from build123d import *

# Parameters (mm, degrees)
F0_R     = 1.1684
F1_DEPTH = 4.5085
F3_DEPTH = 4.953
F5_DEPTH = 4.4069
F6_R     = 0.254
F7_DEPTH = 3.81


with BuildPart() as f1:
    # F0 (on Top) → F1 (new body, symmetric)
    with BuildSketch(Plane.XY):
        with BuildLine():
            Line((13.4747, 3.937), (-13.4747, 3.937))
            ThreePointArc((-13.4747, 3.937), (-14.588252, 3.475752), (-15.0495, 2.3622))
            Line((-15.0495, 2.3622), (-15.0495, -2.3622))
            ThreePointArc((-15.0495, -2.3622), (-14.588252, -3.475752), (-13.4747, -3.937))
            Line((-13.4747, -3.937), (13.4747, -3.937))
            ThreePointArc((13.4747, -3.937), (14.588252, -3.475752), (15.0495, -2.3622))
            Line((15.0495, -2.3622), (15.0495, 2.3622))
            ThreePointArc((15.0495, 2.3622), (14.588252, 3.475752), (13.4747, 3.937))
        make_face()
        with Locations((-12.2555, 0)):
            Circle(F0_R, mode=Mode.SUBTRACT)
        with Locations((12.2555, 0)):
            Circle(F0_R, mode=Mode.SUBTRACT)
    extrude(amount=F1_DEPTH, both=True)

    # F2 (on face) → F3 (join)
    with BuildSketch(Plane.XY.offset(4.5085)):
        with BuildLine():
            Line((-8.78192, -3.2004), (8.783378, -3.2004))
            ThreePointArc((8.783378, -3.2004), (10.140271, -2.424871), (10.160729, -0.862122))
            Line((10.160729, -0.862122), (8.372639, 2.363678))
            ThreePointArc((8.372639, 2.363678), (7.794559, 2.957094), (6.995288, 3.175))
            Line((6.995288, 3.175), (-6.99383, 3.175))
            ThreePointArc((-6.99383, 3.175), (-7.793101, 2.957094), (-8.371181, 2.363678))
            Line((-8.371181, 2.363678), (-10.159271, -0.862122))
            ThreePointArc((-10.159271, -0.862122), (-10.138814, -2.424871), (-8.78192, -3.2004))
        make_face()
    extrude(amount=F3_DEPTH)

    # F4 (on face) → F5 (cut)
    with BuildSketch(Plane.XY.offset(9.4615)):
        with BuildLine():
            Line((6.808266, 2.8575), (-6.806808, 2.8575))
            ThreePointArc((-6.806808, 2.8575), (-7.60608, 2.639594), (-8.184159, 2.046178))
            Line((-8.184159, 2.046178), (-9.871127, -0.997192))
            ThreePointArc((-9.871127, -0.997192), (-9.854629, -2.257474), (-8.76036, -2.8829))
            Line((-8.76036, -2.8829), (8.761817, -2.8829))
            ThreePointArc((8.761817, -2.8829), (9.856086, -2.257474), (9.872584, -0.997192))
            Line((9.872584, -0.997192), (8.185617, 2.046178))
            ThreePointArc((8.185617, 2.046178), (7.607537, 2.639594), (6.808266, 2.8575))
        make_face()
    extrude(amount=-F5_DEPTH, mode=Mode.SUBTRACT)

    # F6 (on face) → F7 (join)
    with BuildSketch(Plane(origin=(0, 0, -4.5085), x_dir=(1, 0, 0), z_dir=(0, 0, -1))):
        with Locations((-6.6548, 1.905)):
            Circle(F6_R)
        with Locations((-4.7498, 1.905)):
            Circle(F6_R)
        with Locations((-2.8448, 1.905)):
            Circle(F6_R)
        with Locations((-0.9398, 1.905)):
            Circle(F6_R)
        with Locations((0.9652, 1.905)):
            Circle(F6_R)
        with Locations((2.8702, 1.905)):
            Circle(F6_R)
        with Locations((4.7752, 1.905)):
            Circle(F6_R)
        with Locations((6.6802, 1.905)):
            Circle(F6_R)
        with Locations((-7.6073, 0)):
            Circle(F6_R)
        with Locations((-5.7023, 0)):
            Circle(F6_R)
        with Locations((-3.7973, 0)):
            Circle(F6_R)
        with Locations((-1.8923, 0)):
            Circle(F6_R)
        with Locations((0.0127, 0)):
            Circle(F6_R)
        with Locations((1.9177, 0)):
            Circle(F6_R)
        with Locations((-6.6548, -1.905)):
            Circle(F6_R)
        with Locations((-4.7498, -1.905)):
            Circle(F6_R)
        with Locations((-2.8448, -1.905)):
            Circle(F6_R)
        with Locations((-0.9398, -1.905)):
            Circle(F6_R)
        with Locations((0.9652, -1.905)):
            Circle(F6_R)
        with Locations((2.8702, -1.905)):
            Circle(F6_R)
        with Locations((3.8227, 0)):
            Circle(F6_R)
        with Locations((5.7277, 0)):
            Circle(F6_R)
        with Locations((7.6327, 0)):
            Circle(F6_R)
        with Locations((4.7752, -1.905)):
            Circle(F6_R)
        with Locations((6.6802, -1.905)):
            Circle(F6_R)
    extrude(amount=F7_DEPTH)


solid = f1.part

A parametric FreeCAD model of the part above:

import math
import FreeCAD as App
import Part
import Sketcher
from FreeCAD import Vector
Q = App.Units.Quantity

doc = App.newDocument("Part")
body = doc.addObject("PartDesign::Body", "Body")

# Sketch on XY plane
sketch1 = body.newObject("Sketcher::SketchObject", "Sketch")
sketch1.AttachmentSupport = (doc.getObject("XY_Plane"), [""])
sketch1.MapMode = "FlatFace"
sketch1.addGeometry([
    Part.LineSegment(Vector(13.4747, 3.937, 0), Vector(-13.4747, 3.937, 0)),  # 0
    Part.ArcOfCircle(Part.Circle(Vector(-13.474701, 2.362201, 0), Vector(0, 0, 1), 1.574799), math.radians(89.99997), math.radians(180.00003)),  # 1
    Part.LineSegment(Vector(-15.0495, 2.3622, 0), Vector(-15.0495, -2.3622, 0)),  # 2
    Part.ArcOfCircle(Part.Circle(Vector(-13.474701, -2.362201, 0), Vector(0, 0, 1), 1.574799), math.radians(179.99997), math.radians(270.00003)),  # 3
    Part.LineSegment(Vector(-13.4747, -3.937, 0), Vector(13.4747, -3.937, 0)),  # 4
    Part.ArcOfCircle(Part.Circle(Vector(13.474701, -2.362201, 0), Vector(0, 0, 1), 1.574799), math.radians(-90.00003), math.radians(0.00003)),  # 5
    Part.LineSegment(Vector(15.0495, -2.3622, 0), Vector(15.0495, 2.3622, 0)),  # 6
    Part.ArcOfCircle(Part.Circle(Vector(13.474701, 2.362201, 0), Vector(0, 0, 1), 1.574799), math.radians(-0.00003), math.radians(90.00003)),  # 7
    Part.Circle(Vector(-12.2555, 0, 0), Vector(0, 0, 1), 1.1684),  # 8
    Part.Circle(Vector(12.2555, 0, 0), Vector(0, 0, 1), 1.1684),  # 9
], False)
sketch1.addConstraint([
    Sketcher.Constraint("Tangent", 0, 2, 1, 1),
    Sketcher.Constraint("Tangent", 1, 2, 2, 1),
    Sketcher.Constraint("Tangent", 2, 2, 3, 1),
    Sketcher.Constraint("Tangent", 3, 2, 4, 1),
    Sketcher.Constraint("Tangent", 4, 2, 5, 1),
    Sketcher.Constraint("Tangent", 5, 2, 6, 1),
    Sketcher.Constraint("Tangent", 6, 2, 7, 1),
    Sketcher.Constraint("Tangent", 7, 2, 0, 1),
    Sketcher.Constraint("Horizontal", 0),
    Sketcher.Constraint("Vertical", 2),
    Sketcher.Constraint("Horizontal", 4),
    Sketcher.Constraint("Vertical", 6),
    Sketcher.Constraint("Equal", 1, 3),
    Sketcher.Constraint("Equal", 3, 5),
    Sketcher.Constraint("Equal", 5, 7),
    Sketcher.Constraint("Equal", 8, 9),
    Sketcher.Constraint("Symmetric", 1, 3, 5, 3, -1, 1),
    Sketcher.Constraint("Symmetric", 8, 3, 9, 3, -1, 1),
    Sketcher.Constraint("PointOnObject", 8, 3, -1),
    Sketcher.Constraint("Diameter", 8, Q("0.092 in")),
    Sketcher.Constraint("Radius", 1, Q("0.062 in")),
    Sketcher.Constraint("DistanceX", 0, 2, 0, 1, Q("1.061 in")),
    Sketcher.Constraint("DistanceY", 2, 2, 2, 1, Q("0.186 in")),
    Sketcher.Constraint("DistanceX", 1, 2, 8, 3, Q("0.11 in")),
])
pad1 = body.newObject("PartDesign::Pad", "Pad")
pad1.Profile = sketch1
pad1.Length = Q("0.355 in")
pad1.Midplane = True

# Sketch on XY plane
sketch2 = body.newObject("Sketcher::SketchObject", "Sketch001")
sketch2.AttachmentSupport = (doc.getObject("XY_Plane"), [""])
sketch2.MapMode = "FlatFace"
sketch2.AttachmentOffset = App.Placement(Vector(0, 0, 0.1775 * 25.4), App.Rotation())
sketch2.addGeometry([
    Part.LineSegment(Vector(-8.78192, -3.2004, 0), Vector(8.783378, -3.2004, 0)),  # 0
    Part.ArcOfCircle(Part.Circle(Vector(8.783377, -1.625599, 0), Vector(0, 0, 1), 1.574801), math.radians(-89.999958), math.radians(28.999958)),  # 1
    Part.LineSegment(Vector(10.160729, -0.862122, 0), Vector(8.372639, 2.363678, 0)),  # 2
    Part.ArcOfCircle(Part.Circle(Vector(6.995289, 1.600202, 0), Vector(0, 0, 1), 1.574798), math.radians(28.999959), math.radians(90.000025)),  # 3
    Part.LineSegment(Vector(6.995288, 3.175, 0), Vector(-6.99383, 3.175, 0)),  # 4
    Part.ArcOfCircle(Part.Circle(Vector(-6.993831, 1.600202, 0), Vector(0, 0, 1), 1.574798), math.radians(89.999975), math.radians(151.000041)),  # 5
    Part.LineSegment(Vector(-8.371181, 2.363678, 0), Vector(-10.159271, -0.862122, 0)),  # 6
    Part.ArcOfCircle(Part.Circle(Vector(-8.78192, -1.6256, 0), Vector(0, 0, 1), 1.5748), math.radians(150.999987), math.radians(270.000013)),  # 7
], False)
sketch2.addConstraint([
    Sketcher.Constraint("Tangent", 0, 2, 1, 1),
    Sketcher.Constraint("Tangent", 1, 2, 2, 1),
    Sketcher.Constraint("Tangent", 2, 2, 3, 1),
    Sketcher.Constraint("Tangent", 3, 2, 4, 1),
    Sketcher.Constraint("Tangent", 4, 2, 5, 1),
    Sketcher.Constraint("Tangent", 5, 2, 6, 1),
    Sketcher.Constraint("Tangent", 6, 2, 7, 1),
    Sketcher.Constraint("Tangent", 7, 2, 0, 1),
    Sketcher.Constraint("Horizontal", 0),
    Sketcher.Constraint("Horizontal", 4),
    Sketcher.Constraint("Equal", 3, 5),
    Sketcher.Constraint("Equal", 5, 7),
    Sketcher.Constraint("Horizontal", 1, 3, 7, 3),
    Sketcher.Constraint("Horizontal", 2, 2, 5, 2),
    Sketcher.Constraint("Angle", 2, Q("118.999998 deg")),
    Sketcher.Constraint("Radius", 1, Q("0.062 in")),
    Sketcher.Constraint("DistanceY", 1, 3, -1, 1, Q("0.064 in")),
    Sketcher.Constraint("DistanceY", -1, 1, 3, 3, Q("0.0630001 in")),
    Sketcher.Constraint("DistanceX", 4, 2, 4, 1, Q("13.989118 mm")),
    Sketcher.Constraint("DistanceX", -1, 1, 3, 3, Q("6.995289 mm")),
])
pad2 = body.newObject("PartDesign::Pad", "Pad001")
pad2.Profile = sketch2
pad2.Length = Q("0.195 in")

# Sketch on XY plane
sketch3 = body.newObject("Sketcher::SketchObject", "Sketch002")
sketch3.AttachmentSupport = (doc.getObject("XY_Plane"), [""])
sketch3.MapMode = "FlatFace"
sketch3.AttachmentOffset = App.Placement(Vector(0, 0, 0.3725 * 25.4), App.Rotation())
sketch3.addGeometry([
    Part.LineSegment(Vector(6.808266, 2.8575, 0), Vector(-6.806808, 2.8575, 0)),  # 0
    Part.ArcOfCircle(Part.Circle(Vector(-6.806811, 1.282705, 0), Vector(0, 0, 1), 1.574795), math.radians(89.999908), math.radians(151.000108)),  # 1
    Part.LineSegment(Vector(-8.184159, 2.046178, 0), Vector(-9.871127, -0.997192, 0)),  # 2
    Part.ArcOfCircle(Part.Circle(Vector(-8.76036, -1.6129, 0), Vector(0, 0, 1), 1.27), math.radians(150.999992), math.radians(270.000012)),  # 3
    Part.LineSegment(Vector(-8.76036, -2.8829, 0), Vector(8.761817, -2.8829, 0)),  # 4
    Part.ArcOfCircle(Part.Circle(Vector(8.761817, -1.6129, 0), Vector(0, 0, 1), 1.27), math.radians(-90.000012), math.radians(29.000008)),  # 5
    Part.LineSegment(Vector(9.872584, -0.997192, 0), Vector(8.185617, 2.046178, 0)),  # 6
    Part.ArcOfCircle(Part.Circle(Vector(6.808267, 1.282702, 0), Vector(0, 0, 1), 1.574798), math.radians(28.999959), math.radians(90.000025)),  # 7
], False)
sketch3.addConstraint([
    Sketcher.Constraint("Tangent", 0, 2, 1, 1),
    Sketcher.Constraint("Coincident", 1, 2, 2, 1),
    Sketcher.Constraint("Tangent", 2, 2, 3, 1),
    Sketcher.Constraint("Tangent", 3, 2, 4, 1),
    Sketcher.Constraint("Tangent", 4, 2, 5, 1),
    Sketcher.Constraint("Tangent", 5, 2, 6, 1),
    Sketcher.Constraint("Tangent", 6, 2, 7, 1),
    Sketcher.Constraint("Tangent", 7, 2, 0, 1),
    Sketcher.Constraint("Horizontal", 0),
    Sketcher.Constraint("Horizontal", 4),
    Sketcher.Constraint("Equal", 3, 5),
    Sketcher.Constraint("Horizontal", 2, 2, 5, 2),
    Sketcher.Constraint("Horizontal", 1, 2, 6, 2),
    Sketcher.Constraint("Radius", 3, Q("0.05 in")),
    Sketcher.Constraint("Angle", 2, Q("-119.000007 deg")),
    Sketcher.Constraint("Radius", 1, Q("0.0619998 in")),
    Sketcher.Constraint("Radius", 7, Q("0.0619999 in")),
    Sketcher.Constraint("DistanceY", 3, 3, 1, 3, Q("0.1140002 in")),
    Sketcher.Constraint("DistanceY", -1, 1, 1, 3, Q("0.0505002 in")),
    Sketcher.Constraint("DistanceX", 0, 2, 0, 1, Q("13.615074 mm")),
    Sketcher.Constraint("DistanceX", 1, 3, -1, 1, Q("6.806811 mm")),
])
pocket1 = body.newObject("PartDesign::Pocket", "Pocket")
pocket1.Profile = sketch3
pocket1.Length = Q("0.1735 in")

# Sketch on XY plane
sketch4 = body.newObject("Sketcher::SketchObject", "Sketch003")
sketch4.AttachmentSupport = (doc.getObject("XY_Plane"), [""])
sketch4.MapMode = "FlatFace"
sketch4.AttachmentOffset = App.Placement(Vector(0, 0, -0.1775 * 25.4), App.Rotation())
sketch4.addGeometry([
    Part.Circle(Vector(-6.6548, -1.905, 0), Vector(0, 0, 1), 0.254),  # 0
    Part.Circle(Vector(-4.7498, -1.905, 0), Vector(0, 0, 1), 0.254),  # 1
    Part.Circle(Vector(-2.8448, -1.905, 0), Vector(0, 0, 1), 0.254),  # 2
    Part.Circle(Vector(-0.9398, -1.905, 0), Vector(0, 0, 1), 0.254),  # 3
    Part.Circle(Vector(0.9652, -1.905, 0), Vector(0, 0, 1), 0.254),  # 4
    Part.Circle(Vector(2.8702, -1.905, 0), Vector(0, 0, 1), 0.254),  # 5
    Part.Circle(Vector(4.7752, -1.905, 0), Vector(0, 0, 1), 0.254),  # 6
    Part.Circle(Vector(6.6802, -1.905, 0), Vector(0, 0, 1), 0.254),  # 7
    Part.Circle(Vector(-7.6073, 0, 0), Vector(0, 0, 1), 0.254),  # 8
    Part.Circle(Vector(-5.7023, 0, 0), Vector(0, 0, 1), 0.254),  # 9
    Part.Circle(Vector(-3.7973, 0, 0), Vector(0, 0, 1), 0.254),  # 10
    Part.Circle(Vector(-1.8923, 0, 0), Vector(0, 0, 1), 0.254),  # 11
    Part.Circle(Vector(0.0127, 0, 0), Vector(0, 0, 1), 0.254),  # 12
    Part.Circle(Vector(1.9177, 0, 0), Vector(0, 0, 1), 0.254),  # 13
    Part.Circle(Vector(-6.6548, 1.905, 0), Vector(0, 0, 1), 0.254),  # 14
    Part.Circle(Vector(-4.7498, 1.905, 0), Vector(0, 0, 1), 0.254),  # 15
    Part.Circle(Vector(-2.8448, 1.905, 0), Vector(0, 0, 1), 0.254),  # 16
    Part.Circle(Vector(-0.9398, 1.905, 0), Vector(0, 0, 1), 0.254),  # 17
    Part.Circle(Vector(0.9652, 1.905, 0), Vector(0, 0, 1), 0.254),  # 18
    Part.Circle(Vector(2.8702, 1.905, 0), Vector(0, 0, 1), 0.254),  # 19
    Part.Circle(Vector(3.8227, 0, 0), Vector(0, 0, 1), 0.254),  # 20
    Part.Circle(Vector(5.7277, 0, 0), Vector(0, 0, 1), 0.254),  # 21
    Part.Circle(Vector(7.6327, 0, 0), Vector(0, 0, 1), 0.254),  # 22
    Part.Circle(Vector(4.7752, 1.905, 0), Vector(0, 0, 1), 0.254),  # 23
    Part.Circle(Vector(6.6802, 1.905, 0), Vector(0, 0, 1), 0.254),  # 24
], False)
sketch4.addConstraint([
    Sketcher.Constraint("Equal", 0, 1),
    Sketcher.Constraint("Equal", 1, 2),
    Sketcher.Constraint("Equal", 2, 3),
    Sketcher.Constraint("Equal", 3, 4),
    Sketcher.Constraint("Equal", 4, 5),
    Sketcher.Constraint("Equal", 5, 6),
    Sketcher.Constraint("Equal", 6, 7),
    Sketcher.Constraint("Equal", 7, 8),
    Sketcher.Constraint("Equal", 8, 9),
    Sketcher.Constraint("Equal", 9, 10),
    Sketcher.Constraint("Equal", 10, 11),
    Sketcher.Constraint("Equal", 11, 12),
    Sketcher.Constraint("Equal", 12, 13),
    Sketcher.Constraint("Equal", 13, 14),
    Sketcher.Constraint("Equal", 14, 15),
    Sketcher.Constraint("Equal", 15, 16),
    Sketcher.Constraint("Equal", 16, 17),
    Sketcher.Constraint("Equal", 17, 18),
    Sketcher.Constraint("Equal", 18, 19),
    Sketcher.Constraint("Equal", 19, 20),
    Sketcher.Constraint("Equal", 20, 21),
    Sketcher.Constraint("Equal", 21, 22),
    Sketcher.Constraint("Equal", 22, 23),
    Sketcher.Constraint("Equal", 23, 24),
    Sketcher.Constraint("Symmetric", 0, 3, 14, 3, -1),
    Sketcher.Constraint("Symmetric", 1, 3, 15, 3, -1),
    Sketcher.Constraint("Symmetric", 2, 3, 16, 3, -1),
    Sketcher.Constraint("Symmetric", 3, 3, 17, 3, -1),
    Sketcher.Constraint("Symmetric", 4, 3, 18, 3, -1),
    Sketcher.Constraint("Symmetric", 5, 3, 19, 3, -1),
    Sketcher.Constraint("Symmetric", 6, 3, 23, 3, -1),
    Sketcher.Constraint("Symmetric", 7, 3, 24, 3, -1),
    Sketcher.Constraint("PointOnObject", 8, 3, -1),
    Sketcher.Constraint("PointOnObject", 9, 3, -1),
    Sketcher.Constraint("PointOnObject", 10, 3, -1),
    Sketcher.Constraint("PointOnObject", 11, 3, -1),
    Sketcher.Constraint("PointOnObject", 12, 3, -1),
    Sketcher.Constraint("PointOnObject", 13, 3, -1),
    Sketcher.Constraint("PointOnObject", 20, 3, -1),
    Sketcher.Constraint("PointOnObject", 21, 3, -1),
    Sketcher.Constraint("PointOnObject", 22, 3, -1),
    Sketcher.Constraint("Horizontal", 0, 3, 1, 3),
    Sketcher.Constraint("Horizontal", 1, 3, 2, 3),
    Sketcher.Constraint("Horizontal", 2, 3, 3, 3),
    Sketcher.Constraint("Horizontal", 3, 3, 4, 3),
    Sketcher.Constraint("Horizontal", 4, 3, 5, 3),
    Sketcher.Constraint("Horizontal", 5, 3, 6, 3),
    Sketcher.Constraint("Horizontal", 6, 3, 7, 3),
    Sketcher.Constraint("Diameter", 0, Q("0.02 in")),
    Sketcher.Constraint("DistanceX", 0, 3, 4, 3, Q("0.3 in")),
    Sketcher.Constraint("DistanceX", 1, 3, 5, 3, Q("0.3 in")),
    Sketcher.Constraint("DistanceX", 2, 3, 6, 3, Q("0.3 in")),
    Sketcher.Constraint("DistanceX", 3, 3, 7, 3, Q("0.3 in")),
    Sketcher.Constraint("DistanceX", 0, 3, 2, 3, Q("0.15 in")),
    Sketcher.Constraint("DistanceX", 1, 3, 3, 3, Q("0.15 in")),
    Sketcher.Constraint("DistanceY", 0, 3, 14, 3, Q("0.15 in")),
    Sketcher.Constraint("DistanceX", 20, 3, 22, 3, Q("0.15 in")),
    Sketcher.Constraint("DistanceX", 0, 3, -1, 1, Q("0.262 in")),
    Sketcher.Constraint("DistanceX", 1, 3, -1, 1, Q("0.187 in")),
    Sketcher.Constraint("DistanceX", 8, 3, 2, 3, Q("0.1875 in")),
    Sketcher.Constraint("DistanceX", 8, 3, 9, 3, Q("0.075 in")),
    Sketcher.Constraint("DistanceX", 9, 3, 10, 3, Q("0.075 in")),
    Sketcher.Constraint("DistanceX", 10, 3, 11, 3, Q("0.075 in")),
    Sketcher.Constraint("DistanceX", 11, 3, 12, 3, Q("0.075 in")),
    Sketcher.Constraint("DistanceX", 12, 3, 13, 3, Q("0.075 in")),
    Sketcher.Constraint("DistanceX", 13, 3, 20, 3, Q("0.075 in")),
    Sketcher.Constraint("DistanceX", 20, 3, 21, 3, Q("0.075 in")),
])
pad3 = body.newObject("PartDesign::Pad", "Pad002")
pad3.Profile = sketch4
pad3.Length = Q("0.15 in")
pad3.Reversed = True

doc.recompute()
